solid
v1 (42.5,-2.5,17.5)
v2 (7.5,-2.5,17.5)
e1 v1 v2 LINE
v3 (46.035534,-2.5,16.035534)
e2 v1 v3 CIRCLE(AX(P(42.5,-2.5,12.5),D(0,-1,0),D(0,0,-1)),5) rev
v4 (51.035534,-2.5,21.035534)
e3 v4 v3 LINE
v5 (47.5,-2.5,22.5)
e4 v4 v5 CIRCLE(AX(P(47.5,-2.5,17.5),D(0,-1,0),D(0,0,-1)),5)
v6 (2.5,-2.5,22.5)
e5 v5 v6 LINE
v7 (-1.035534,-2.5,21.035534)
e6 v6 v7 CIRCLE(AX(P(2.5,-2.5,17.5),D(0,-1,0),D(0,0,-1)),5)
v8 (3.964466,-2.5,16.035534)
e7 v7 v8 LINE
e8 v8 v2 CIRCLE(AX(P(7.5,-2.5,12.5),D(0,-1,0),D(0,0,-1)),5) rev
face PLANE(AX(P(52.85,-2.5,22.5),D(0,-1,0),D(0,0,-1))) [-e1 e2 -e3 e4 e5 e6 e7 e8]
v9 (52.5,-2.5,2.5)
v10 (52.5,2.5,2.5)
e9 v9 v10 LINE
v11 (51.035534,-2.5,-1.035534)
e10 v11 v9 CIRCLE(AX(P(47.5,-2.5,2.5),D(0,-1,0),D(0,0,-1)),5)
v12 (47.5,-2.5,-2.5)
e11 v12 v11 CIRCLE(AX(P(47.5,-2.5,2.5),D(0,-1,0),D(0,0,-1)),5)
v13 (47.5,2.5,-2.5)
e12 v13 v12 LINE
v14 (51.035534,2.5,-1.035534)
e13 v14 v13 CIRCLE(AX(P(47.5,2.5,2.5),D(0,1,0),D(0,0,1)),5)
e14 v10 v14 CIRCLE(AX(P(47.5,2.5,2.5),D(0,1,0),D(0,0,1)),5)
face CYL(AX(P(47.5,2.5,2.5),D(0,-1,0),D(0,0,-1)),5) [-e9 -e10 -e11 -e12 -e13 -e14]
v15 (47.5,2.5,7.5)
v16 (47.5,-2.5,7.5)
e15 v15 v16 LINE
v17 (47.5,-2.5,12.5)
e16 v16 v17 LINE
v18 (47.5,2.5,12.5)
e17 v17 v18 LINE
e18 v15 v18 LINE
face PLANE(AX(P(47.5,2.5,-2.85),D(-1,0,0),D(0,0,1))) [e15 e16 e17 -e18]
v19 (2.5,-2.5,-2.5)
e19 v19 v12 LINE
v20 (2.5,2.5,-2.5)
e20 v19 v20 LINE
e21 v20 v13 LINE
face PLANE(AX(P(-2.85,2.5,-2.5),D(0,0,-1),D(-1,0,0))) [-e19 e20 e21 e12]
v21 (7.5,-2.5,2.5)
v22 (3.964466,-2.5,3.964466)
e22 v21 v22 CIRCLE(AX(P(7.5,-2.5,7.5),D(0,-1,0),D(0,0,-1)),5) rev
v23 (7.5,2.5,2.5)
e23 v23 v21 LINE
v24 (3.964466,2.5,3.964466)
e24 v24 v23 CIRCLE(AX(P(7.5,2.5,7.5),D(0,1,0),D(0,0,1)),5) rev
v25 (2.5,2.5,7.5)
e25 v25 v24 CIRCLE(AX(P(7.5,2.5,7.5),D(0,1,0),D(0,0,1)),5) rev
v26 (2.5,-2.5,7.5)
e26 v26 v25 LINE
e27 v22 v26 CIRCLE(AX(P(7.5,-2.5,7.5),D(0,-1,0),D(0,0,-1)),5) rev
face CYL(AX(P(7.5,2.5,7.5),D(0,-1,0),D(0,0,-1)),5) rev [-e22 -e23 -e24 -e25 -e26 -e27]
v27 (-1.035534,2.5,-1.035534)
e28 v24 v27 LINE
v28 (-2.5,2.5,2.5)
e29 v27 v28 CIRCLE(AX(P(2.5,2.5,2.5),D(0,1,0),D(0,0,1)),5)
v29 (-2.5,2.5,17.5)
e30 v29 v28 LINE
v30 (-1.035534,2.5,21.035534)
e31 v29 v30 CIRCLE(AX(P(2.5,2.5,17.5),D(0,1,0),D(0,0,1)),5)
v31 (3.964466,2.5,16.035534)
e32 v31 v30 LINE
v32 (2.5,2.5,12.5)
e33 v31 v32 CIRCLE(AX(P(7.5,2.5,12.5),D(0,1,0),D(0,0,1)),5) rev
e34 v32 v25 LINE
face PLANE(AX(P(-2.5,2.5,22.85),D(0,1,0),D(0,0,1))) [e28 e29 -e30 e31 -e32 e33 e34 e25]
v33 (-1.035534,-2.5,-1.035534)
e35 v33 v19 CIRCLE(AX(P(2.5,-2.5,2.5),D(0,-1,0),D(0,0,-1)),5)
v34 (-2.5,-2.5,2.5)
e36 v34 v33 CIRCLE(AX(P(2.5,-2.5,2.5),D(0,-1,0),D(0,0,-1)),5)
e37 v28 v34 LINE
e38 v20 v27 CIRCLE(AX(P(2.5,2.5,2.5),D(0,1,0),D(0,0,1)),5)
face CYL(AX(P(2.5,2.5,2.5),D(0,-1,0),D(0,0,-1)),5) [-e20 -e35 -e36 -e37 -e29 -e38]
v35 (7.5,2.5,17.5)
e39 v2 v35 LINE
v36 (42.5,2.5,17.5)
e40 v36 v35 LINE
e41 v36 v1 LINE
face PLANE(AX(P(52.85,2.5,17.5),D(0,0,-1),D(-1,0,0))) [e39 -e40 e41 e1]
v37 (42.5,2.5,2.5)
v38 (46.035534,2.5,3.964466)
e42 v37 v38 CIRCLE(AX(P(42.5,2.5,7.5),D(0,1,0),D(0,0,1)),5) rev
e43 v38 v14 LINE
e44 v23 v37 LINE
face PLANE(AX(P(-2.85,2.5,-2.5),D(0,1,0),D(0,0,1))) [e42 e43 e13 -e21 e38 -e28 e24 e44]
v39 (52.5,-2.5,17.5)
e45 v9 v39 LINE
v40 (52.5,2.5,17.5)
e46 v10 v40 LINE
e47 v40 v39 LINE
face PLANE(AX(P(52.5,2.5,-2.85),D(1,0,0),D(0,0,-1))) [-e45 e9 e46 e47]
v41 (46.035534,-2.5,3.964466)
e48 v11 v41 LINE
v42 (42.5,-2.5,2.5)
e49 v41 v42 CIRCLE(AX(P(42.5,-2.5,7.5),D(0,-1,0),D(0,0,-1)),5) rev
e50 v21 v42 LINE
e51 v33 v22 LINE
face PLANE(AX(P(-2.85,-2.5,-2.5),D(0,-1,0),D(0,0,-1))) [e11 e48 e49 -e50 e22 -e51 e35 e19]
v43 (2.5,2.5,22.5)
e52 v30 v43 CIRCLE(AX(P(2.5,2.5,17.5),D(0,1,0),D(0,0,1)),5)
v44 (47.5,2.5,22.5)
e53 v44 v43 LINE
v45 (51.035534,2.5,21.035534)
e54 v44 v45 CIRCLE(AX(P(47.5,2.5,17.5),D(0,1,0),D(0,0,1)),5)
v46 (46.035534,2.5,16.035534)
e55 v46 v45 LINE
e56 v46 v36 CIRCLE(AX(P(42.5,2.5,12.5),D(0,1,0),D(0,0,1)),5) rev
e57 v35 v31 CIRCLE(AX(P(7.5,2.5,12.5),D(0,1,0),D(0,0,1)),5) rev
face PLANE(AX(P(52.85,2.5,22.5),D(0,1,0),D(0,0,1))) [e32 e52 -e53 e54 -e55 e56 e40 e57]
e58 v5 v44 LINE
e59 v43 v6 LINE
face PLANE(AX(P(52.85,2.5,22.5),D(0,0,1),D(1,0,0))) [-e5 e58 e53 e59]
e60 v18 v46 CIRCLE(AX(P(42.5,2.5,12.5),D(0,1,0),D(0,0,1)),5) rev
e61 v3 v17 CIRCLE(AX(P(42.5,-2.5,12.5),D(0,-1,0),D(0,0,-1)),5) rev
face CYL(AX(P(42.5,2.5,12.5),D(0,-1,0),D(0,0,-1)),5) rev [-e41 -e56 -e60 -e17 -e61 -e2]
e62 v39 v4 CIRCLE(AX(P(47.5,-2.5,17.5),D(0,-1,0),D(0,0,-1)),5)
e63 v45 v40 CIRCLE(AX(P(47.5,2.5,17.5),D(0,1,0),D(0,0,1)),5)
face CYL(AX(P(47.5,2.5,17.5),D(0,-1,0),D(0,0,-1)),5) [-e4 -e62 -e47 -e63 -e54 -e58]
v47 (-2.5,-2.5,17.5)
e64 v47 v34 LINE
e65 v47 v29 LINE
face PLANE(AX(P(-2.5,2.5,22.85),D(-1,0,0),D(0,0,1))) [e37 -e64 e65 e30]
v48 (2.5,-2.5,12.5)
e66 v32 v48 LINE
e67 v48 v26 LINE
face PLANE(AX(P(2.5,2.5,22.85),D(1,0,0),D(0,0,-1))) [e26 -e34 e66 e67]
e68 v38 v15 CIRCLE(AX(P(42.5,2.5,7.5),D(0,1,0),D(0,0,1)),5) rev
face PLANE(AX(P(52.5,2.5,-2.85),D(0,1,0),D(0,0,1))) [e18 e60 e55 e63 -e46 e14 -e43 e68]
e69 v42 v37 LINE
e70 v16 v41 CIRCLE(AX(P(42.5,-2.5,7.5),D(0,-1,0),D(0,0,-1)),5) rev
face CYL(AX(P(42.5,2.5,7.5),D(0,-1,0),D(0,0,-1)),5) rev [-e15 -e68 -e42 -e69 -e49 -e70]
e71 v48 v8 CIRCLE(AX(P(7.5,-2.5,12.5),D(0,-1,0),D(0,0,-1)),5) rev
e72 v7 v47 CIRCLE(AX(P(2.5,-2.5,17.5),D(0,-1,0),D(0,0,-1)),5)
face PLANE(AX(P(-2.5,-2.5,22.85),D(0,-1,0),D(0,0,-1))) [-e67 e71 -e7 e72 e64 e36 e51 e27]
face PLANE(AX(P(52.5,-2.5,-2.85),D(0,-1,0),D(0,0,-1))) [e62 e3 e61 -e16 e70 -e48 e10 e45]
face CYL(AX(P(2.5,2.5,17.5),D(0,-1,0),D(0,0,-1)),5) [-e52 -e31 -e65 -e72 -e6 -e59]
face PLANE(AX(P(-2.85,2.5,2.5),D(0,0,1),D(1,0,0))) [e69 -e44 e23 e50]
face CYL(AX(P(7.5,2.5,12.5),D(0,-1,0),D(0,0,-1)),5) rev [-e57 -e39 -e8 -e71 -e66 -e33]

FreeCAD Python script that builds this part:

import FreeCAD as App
import Part
import Sketcher
Q = App.Units.Quantity


def edges_at(feature, points):
    """Names of the edges that pass closest to the given points."""
    edges = feature.Shape.Edges
    near = lambda p: min(range(len(edges)), key=lambda i: edges[i].distToShape(Part.Vertex(*p))[0])
    return sorted({f"Edge{near(p) + 1}" for p in points})

doc = App.newDocument("Part")
body = doc.addObject("PartDesign::Body", "Body")

# Sketch on YZ plane
sketch1 = body.newObject("Sketcher::SketchObject", "Sketch")
sketch1.AttachmentSupport = (doc.getObject("YZ_Plane"), [""])
sketch1.MapMode = "FlatFace"
sketch1.addGeometry(Part.LineSegment(App.Vector(2, 2, 0), App.Vector(-2, 2, 0)), False)
sketch1.addGeometry(Part.LineSegment(App.Vector(-2, 2, 0), App.Vector(-2, -2, 0)), False)
sketch1.addGeometry(Part.LineSegment(App.Vector(-2, -2, 0), App.Vector(2, -2, 0)), False)
sketch1.addGeometry(Part.LineSegment(App.Vector(2, -2, 0), App.Vector(2, 2, 0)), False)
sketch1.addConstraint(Sketcher.Constraint("Coincident", 0, 2, 1, 1))
sketch1.addConstraint(Sketcher.Constraint("Coincident", 1, 2, 2, 1))
sketch1.addConstraint(Sketcher.Constraint("Coincident", 2, 2, 3, 1))
sketch1.addConstraint(Sketcher.Constraint("Coincident", 3, 2, 0, 1))
sketch1.addConstraint(Sketcher.Constraint("Horizontal", 0))
sketch1.addConstraint(Sketcher.Constraint("Vertical", 1))
sketch1.addConstraint(Sketcher.Constraint("Horizontal", 2))
sketch1.addConstraint(Sketcher.Constraint("Vertical", 3))
sketch1.addConstraint(Sketcher.Constraint("Symmetric", 0, 2, 2, 2, -1, 1))
sketch1.addConstraint(Sketcher.Constraint("Equal", 2, 1))
sketch1.addConstraint(Sketcher.Constraint("DistanceX", 0, 2, 0, 1, Q("5 mm")))

# Sketch on XZ plane
sketch2 = body.newObject("Sketcher::SketchObject", "Sketch001")
sketch2.AttachmentSupport = (doc.getObject("XZ_Plane"), [""])
sketch2.MapMode = "FlatFace"
sketch2.addGeometry(Part.LineSegment(App.Vector(0, 0, 0), App.Vector(50, 0, 0)), False)
sketch2.addGeometry(Part.LineSegment(App.Vector(50, 0, 0), App.Vector(50, 20, 0)), False)
sketch2.addGeometry(Part.LineSegment(App.Vector(50, 20, 0), App.Vector(0, 20, 0)), False)
sketch2.addGeometry(Part.LineSegment(App.Vector(0, 20, 0), App.Vector(0, 0, 0)), False)
sketch2.addConstraint(Sketcher.Constraint("Coincident", 0, 2, 1, 1))
sketch2.addConstraint(Sketcher.Constraint("Coincident", 1, 2, 2, 1))
sketch2.addConstraint(Sketcher.Constraint("Coincident", 2, 2, 3, 1))
sketch2.addConstraint(Sketcher.Constraint("Coincident", 3, 2, 0, 1))
sketch2.addConstraint(Sketcher.Constraint("Horizontal", 0))
sketch2.addConstraint(Sketcher.Constraint("Vertical", 1))
sketch2.addConstraint(Sketcher.Constraint("Horizontal", 2))
sketch2.addConstraint(Sketcher.Constraint("Vertical", 3))
sketch2.addConstraint(Sketcher.Constraint("Coincident", 3, 2, -1, 1))
sketch2.addConstraint(Sketcher.Constraint("DistanceX", 0, 1, 0, 2, Q("50 mm")))
sketch2.addConstraint(Sketcher.Constraint("DistanceY", 1, 1, 1, 2, Q("20 mm")))
doc.recompute()

additivepipe = body.newObject("PartDesign::AdditivePipe", "AdditivePipe")
additivepipe.Profile = sketch1
additivepipe.Spine = (sketch2, ["Edge1", "Edge2", "Edge3", "Edge4"])
additivepipe.Transition = "Right corner"
doc.recompute()

fillet = body.newObject("PartDesign::Fillet", "Fillet")
fillet.Base = (additivepipe, edges_at(additivepipe, [
    (-2.5, 0, 22.5),
    (2.5, 0, 17.5),
    (47.5, 0, 2.5),
    (52.5, 0, -2.5),
    (-2.5, 0, -2.5),
    (2.5, 0, 2.5),
    (52.5, 0, 22.5),
    (47.5, 0, 17.5),
]))
fillet.Radius = 5

doc.recompute()
